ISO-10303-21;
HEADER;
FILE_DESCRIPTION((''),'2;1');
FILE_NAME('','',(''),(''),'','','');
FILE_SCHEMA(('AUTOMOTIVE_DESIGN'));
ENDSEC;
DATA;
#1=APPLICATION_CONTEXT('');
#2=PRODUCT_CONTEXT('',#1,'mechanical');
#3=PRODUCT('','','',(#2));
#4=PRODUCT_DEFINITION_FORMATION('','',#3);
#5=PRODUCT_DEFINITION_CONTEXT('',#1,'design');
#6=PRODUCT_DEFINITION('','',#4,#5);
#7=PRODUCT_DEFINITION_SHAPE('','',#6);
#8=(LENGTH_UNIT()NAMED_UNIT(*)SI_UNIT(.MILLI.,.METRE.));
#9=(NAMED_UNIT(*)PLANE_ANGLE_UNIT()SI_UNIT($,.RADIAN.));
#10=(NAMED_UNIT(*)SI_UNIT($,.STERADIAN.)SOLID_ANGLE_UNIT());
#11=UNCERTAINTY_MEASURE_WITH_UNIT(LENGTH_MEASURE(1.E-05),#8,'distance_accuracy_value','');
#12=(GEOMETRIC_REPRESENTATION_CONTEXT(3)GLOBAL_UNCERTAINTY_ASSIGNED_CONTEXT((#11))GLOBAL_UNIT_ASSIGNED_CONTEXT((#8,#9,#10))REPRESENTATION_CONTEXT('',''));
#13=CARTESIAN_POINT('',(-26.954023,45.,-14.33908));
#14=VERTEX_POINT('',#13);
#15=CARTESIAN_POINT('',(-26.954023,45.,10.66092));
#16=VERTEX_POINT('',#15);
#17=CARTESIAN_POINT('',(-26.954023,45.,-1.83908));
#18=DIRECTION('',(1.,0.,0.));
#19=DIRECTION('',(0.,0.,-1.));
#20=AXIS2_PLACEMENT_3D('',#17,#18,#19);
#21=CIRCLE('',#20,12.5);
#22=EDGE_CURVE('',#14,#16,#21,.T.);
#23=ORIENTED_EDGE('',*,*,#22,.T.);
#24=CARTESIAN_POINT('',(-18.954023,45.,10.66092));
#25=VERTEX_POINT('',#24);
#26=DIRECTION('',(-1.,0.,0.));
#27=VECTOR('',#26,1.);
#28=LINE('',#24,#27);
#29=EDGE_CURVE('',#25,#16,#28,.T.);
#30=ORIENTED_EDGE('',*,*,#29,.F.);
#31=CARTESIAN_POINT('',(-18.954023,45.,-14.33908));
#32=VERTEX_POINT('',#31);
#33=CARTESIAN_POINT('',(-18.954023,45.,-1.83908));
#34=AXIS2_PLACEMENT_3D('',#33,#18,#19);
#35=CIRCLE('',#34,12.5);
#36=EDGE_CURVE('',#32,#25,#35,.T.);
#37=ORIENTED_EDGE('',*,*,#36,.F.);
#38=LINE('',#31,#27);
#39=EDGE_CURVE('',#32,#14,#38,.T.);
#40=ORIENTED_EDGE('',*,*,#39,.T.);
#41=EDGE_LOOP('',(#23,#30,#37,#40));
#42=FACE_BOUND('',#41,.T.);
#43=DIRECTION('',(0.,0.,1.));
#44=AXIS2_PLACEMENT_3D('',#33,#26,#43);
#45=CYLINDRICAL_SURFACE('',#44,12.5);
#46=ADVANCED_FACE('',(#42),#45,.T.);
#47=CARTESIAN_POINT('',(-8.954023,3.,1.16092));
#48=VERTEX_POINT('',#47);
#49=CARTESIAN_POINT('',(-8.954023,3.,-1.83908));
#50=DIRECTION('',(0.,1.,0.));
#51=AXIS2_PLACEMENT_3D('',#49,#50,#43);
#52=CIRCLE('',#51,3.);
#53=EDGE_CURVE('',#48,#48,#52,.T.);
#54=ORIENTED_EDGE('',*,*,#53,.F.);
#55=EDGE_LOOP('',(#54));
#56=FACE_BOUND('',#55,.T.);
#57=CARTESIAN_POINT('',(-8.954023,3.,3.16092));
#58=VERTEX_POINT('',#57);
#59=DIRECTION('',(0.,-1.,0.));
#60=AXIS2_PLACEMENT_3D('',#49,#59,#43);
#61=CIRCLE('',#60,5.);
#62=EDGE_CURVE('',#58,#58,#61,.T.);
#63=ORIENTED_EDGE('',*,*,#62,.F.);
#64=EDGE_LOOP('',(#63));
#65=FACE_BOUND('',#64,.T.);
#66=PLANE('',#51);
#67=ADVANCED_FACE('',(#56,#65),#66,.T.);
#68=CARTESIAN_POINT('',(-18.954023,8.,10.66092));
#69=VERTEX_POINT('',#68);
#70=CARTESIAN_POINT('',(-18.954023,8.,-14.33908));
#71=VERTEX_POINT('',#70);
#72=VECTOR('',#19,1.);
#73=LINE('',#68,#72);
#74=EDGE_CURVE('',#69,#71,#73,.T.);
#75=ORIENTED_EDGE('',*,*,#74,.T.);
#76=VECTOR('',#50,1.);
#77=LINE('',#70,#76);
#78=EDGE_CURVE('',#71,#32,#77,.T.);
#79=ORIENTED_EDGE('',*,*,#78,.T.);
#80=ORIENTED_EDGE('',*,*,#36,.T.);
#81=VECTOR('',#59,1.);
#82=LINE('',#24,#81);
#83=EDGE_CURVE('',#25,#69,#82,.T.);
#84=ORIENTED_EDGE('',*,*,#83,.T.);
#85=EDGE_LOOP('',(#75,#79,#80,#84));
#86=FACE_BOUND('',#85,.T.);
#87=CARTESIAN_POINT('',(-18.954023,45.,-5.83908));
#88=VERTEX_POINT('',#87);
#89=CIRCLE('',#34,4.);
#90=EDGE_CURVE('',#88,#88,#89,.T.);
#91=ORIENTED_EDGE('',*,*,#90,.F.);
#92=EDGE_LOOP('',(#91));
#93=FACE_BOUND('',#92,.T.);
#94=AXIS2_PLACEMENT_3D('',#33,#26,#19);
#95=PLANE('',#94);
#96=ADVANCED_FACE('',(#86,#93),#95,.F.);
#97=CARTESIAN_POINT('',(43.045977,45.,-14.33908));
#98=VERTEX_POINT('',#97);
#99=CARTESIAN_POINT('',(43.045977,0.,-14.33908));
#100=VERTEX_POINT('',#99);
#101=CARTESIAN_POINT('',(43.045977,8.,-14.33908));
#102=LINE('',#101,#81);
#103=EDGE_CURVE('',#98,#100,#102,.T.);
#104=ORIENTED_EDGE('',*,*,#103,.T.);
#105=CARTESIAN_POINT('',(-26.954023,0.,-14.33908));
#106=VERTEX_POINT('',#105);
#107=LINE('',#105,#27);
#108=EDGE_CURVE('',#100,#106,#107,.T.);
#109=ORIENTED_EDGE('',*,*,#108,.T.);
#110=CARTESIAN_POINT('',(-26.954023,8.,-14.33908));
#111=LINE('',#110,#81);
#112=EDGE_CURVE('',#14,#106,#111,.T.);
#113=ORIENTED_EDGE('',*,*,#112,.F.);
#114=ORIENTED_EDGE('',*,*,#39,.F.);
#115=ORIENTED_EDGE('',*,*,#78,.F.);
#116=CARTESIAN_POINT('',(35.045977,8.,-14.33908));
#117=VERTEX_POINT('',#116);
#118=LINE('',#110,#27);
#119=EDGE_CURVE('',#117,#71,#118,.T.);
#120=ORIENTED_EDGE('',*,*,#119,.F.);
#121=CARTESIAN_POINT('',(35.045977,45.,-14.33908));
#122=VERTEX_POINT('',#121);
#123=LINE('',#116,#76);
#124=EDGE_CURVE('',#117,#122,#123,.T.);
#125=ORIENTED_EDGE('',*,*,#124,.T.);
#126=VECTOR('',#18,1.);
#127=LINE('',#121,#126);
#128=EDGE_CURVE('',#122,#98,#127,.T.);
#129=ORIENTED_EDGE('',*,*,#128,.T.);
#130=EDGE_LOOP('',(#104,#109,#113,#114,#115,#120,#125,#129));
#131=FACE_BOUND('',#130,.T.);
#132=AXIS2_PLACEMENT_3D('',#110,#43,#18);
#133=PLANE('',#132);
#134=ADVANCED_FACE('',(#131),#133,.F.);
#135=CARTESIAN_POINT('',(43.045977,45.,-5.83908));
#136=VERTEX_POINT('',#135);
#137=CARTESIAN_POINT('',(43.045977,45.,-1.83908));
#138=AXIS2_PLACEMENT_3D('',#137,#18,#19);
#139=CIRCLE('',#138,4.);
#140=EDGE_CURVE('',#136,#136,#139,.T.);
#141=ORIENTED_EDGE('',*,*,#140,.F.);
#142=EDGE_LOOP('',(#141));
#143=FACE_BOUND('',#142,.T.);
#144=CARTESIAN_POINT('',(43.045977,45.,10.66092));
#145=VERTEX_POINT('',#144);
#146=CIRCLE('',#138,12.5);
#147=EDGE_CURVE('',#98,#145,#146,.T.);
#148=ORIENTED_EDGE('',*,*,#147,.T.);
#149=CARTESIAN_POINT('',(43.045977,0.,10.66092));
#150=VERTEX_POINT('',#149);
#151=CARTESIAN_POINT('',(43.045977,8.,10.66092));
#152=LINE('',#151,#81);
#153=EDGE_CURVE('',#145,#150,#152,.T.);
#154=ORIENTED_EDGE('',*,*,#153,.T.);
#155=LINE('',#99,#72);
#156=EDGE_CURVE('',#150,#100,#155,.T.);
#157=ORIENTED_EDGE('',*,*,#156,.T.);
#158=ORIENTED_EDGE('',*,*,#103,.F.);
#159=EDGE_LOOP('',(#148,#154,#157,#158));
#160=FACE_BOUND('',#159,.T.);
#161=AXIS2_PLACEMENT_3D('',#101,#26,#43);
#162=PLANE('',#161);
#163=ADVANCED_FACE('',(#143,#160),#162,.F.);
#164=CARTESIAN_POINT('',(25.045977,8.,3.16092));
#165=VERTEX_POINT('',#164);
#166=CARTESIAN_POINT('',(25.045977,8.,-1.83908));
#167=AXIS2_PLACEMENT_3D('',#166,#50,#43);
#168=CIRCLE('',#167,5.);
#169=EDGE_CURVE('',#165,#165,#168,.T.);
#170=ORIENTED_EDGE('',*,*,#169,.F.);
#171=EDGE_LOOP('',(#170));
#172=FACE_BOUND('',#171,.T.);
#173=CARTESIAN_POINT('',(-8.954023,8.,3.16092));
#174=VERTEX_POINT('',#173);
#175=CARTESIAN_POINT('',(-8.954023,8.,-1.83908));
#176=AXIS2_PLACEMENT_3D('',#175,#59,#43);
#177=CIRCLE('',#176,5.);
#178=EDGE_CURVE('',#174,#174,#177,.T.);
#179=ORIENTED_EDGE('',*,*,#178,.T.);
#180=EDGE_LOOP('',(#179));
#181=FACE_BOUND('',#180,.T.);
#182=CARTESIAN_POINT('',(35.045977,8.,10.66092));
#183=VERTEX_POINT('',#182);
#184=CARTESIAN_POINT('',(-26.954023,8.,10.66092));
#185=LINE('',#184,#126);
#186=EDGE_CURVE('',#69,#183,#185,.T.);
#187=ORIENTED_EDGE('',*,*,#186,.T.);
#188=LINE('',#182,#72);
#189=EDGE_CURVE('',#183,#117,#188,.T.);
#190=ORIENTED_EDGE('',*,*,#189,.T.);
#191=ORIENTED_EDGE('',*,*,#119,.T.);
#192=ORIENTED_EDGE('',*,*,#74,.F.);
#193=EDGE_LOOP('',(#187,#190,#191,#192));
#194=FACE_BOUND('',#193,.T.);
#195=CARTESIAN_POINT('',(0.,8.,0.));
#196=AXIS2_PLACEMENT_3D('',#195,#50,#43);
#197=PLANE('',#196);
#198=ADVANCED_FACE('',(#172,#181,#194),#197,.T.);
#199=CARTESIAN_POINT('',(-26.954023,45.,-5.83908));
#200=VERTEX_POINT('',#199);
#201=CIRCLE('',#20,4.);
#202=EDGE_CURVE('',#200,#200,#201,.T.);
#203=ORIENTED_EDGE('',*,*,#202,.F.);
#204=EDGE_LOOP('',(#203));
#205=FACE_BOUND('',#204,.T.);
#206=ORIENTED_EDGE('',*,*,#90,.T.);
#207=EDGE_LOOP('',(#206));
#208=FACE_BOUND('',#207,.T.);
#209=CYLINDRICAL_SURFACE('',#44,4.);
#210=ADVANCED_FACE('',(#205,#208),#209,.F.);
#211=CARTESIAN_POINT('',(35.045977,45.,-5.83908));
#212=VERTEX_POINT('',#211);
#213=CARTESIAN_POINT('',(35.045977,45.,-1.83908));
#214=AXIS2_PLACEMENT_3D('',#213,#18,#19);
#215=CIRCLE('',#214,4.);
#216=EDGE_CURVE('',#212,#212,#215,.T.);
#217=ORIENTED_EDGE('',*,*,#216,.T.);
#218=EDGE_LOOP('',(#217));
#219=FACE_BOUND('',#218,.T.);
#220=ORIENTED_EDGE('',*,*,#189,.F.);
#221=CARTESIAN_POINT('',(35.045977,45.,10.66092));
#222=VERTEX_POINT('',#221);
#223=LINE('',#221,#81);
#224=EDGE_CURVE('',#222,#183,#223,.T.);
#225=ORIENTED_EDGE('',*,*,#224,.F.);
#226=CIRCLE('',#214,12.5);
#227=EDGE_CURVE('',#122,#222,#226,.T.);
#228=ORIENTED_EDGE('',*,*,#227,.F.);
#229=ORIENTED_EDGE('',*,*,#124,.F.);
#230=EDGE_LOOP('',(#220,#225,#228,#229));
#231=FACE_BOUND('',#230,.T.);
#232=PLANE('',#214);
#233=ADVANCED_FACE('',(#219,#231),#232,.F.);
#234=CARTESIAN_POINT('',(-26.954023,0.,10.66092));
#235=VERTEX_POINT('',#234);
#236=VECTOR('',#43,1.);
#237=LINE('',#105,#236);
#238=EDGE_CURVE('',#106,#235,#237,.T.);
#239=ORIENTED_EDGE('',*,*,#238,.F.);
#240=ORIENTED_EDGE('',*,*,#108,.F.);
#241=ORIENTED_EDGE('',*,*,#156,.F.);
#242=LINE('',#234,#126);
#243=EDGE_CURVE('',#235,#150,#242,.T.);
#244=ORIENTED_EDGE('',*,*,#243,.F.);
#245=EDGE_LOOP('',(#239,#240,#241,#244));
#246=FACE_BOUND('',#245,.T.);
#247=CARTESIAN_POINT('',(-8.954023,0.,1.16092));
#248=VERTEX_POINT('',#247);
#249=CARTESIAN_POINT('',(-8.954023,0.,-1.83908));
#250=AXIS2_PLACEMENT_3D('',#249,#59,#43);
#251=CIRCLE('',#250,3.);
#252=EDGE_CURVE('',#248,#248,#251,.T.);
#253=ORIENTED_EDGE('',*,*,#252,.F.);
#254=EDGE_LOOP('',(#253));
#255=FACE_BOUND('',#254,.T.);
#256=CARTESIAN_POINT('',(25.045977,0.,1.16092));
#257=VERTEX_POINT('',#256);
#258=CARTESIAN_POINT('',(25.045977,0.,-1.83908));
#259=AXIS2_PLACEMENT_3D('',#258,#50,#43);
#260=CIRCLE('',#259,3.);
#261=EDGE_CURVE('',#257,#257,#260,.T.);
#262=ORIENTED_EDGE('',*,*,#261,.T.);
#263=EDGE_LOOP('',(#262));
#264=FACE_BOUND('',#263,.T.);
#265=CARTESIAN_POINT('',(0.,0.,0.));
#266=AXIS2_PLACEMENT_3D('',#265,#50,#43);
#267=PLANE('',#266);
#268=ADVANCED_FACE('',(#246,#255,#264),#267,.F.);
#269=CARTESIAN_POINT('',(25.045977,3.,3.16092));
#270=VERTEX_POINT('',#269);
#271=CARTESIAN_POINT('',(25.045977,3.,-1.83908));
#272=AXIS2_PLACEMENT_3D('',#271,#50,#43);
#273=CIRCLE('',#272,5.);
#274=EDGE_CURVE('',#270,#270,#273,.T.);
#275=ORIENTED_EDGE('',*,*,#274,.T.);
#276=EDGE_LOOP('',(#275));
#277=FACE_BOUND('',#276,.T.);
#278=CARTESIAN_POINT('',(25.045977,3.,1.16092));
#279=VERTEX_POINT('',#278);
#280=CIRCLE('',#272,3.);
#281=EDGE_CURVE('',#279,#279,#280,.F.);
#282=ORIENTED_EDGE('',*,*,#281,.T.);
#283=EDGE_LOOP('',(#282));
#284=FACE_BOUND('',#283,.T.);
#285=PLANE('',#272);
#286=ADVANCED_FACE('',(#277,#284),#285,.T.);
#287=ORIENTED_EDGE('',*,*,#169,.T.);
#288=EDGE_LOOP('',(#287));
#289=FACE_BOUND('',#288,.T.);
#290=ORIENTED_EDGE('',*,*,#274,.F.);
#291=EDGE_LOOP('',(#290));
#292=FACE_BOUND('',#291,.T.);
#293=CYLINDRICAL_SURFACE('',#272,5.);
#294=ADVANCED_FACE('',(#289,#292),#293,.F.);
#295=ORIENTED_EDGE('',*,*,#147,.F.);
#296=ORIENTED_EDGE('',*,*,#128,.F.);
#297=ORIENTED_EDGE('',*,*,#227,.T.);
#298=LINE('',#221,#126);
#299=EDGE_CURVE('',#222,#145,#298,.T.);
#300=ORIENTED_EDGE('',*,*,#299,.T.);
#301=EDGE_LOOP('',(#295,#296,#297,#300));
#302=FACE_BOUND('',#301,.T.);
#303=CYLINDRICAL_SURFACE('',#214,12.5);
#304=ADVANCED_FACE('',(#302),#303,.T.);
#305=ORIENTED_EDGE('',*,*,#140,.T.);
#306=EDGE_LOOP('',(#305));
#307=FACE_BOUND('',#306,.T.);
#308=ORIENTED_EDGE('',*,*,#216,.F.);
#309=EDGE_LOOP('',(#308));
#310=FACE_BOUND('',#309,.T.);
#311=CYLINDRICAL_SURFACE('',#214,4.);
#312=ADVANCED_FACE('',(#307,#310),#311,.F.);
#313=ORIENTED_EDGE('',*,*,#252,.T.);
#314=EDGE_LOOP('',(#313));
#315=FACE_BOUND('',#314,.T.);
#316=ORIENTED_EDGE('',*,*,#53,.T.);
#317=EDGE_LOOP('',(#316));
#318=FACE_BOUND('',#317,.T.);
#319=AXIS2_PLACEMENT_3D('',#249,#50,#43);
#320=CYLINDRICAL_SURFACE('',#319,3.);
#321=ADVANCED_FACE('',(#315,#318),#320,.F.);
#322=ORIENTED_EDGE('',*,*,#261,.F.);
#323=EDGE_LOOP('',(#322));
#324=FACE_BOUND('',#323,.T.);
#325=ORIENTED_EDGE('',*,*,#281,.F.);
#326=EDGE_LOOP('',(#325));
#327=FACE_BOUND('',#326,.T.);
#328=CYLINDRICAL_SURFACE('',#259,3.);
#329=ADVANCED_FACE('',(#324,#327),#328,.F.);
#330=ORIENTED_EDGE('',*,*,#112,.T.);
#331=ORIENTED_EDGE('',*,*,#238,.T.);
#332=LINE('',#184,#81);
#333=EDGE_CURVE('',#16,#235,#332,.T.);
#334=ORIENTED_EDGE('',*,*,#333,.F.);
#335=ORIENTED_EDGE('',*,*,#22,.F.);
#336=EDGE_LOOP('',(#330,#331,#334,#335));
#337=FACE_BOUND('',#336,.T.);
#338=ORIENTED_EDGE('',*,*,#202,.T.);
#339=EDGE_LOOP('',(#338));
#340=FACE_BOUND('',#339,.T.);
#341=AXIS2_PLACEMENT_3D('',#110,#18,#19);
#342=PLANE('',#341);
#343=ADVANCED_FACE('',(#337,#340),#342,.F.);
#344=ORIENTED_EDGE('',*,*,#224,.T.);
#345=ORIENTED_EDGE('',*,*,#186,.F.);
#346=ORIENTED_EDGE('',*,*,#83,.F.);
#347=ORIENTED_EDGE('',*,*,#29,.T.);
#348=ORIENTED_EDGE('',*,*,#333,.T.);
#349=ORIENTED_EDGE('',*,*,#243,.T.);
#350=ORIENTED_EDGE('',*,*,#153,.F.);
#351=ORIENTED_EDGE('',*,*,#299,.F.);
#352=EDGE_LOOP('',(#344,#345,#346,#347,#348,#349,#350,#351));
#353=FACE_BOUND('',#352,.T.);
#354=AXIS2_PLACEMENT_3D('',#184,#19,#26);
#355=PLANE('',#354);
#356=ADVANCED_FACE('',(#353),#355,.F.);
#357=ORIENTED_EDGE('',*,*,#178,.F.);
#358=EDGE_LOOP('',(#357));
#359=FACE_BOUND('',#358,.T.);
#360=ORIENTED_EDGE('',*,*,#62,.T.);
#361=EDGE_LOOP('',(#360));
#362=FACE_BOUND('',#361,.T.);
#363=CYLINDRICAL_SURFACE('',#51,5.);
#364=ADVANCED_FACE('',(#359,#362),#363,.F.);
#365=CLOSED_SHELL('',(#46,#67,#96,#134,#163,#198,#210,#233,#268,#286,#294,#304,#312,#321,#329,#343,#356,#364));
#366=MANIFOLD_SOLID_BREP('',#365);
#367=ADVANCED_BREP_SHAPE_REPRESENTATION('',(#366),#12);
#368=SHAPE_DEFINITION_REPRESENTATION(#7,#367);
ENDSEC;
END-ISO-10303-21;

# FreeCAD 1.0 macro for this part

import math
import FreeCAD as App
import Part
import Sketcher
from FreeCAD import Vector


def add_polygon(sketch, points):
    """Adds a closed chain of lines whose ends are joined by coincident constraints."""
    first, n = sketch.GeometryCount, len(points)
    for a, b in zip(points, points[1:] + points[:1]):
        sketch.addGeometry(Part.LineSegment(App.Vector(*a, 0), App.Vector(*b, 0)), False)
    for i in range(n):
        sketch.addConstraint(Sketcher.Constraint("Coincident", first + i, 2, first + (i + 1) % n, 1))

doc = App.newDocument("Part")
params = doc.addObject("Spreadsheet::Sheet", "Params")
for row, (alias, value) in enumerate([
    ("sketch1_width", "70 mm"),
    ("sketch1_height", "25 mm"),
    ("pad1_length", "8 mm"),
    ("sketch2_diameter", "6 mm"),
    ("sketch3_diameter", "10 mm"),
    ("pocket2_length", "5 mm"),
    ("sketch4_diameter", "8 mm"),
    ("sketch4_radius", "12.5 mm"),
    ("sketch4_width", "37 mm"),
    ("pad2_length", "8 mm"),
], start=1):
    params.set(f"A{row}", alias)
    params.set(f"B{row}", "=" + value)
    params.setAlias(f"B{row}", alias)

body = doc.addObject("PartDesign::Body", "Body")

# Sketch on XZ plane
sketch1 = body.newObject("Sketcher::SketchObject", "Sketch")
sketch1.AttachmentSupport = (doc.getObject("XZ_Plane"), [""])
sketch1.MapMode = "FlatFace"
add_polygon(sketch1, [(-26.954023, -14.33908), (-26.954023, 10.66092), (43.045977, 10.66092), (43.045977, -14.33908)])  # lines 0-3
sketch1.addConstraint([
    Sketcher.Constraint("Vertical", 0),
    Sketcher.Constraint("Horizontal", 1),
    Sketcher.Constraint("Vertical", 2),
    Sketcher.Constraint("Horizontal", 3),
    Sketcher.Constraint("DistanceX", 1, 1, 1, 2, 70.0),
    Sketcher.Constraint("DistanceY", 0, 1, 0, 2, 25.0),
    Sketcher.Constraint("DistanceY", -1, 1, 0, 2, 10.66092),
    Sketcher.Constraint("DistanceX", 0, 2, -1, 1, 26.954023),
])
sketch1.setExpression("Constraints[8]", "Params.sketch1_width")
sketch1.setExpression("Constraints[9]", "Params.sketch1_height")
pad1 = body.newObject("PartDesign::Pad", "Pad")
pad1.Profile = sketch1
pad1.setExpression("Length", "Params.pad1_length")
pad1.Reversed = True

# Sketch on XZ plane
sketch2 = body.newObject("Sketcher::SketchObject", "Sketch001")
sketch2.AttachmentSupport = (doc.getObject("XZ_Plane"), [""])
sketch2.MapMode = "FlatFace"
sketch2.AttachmentOffset = App.Placement(Vector(0, 0, -8), App.Rotation())
sketch2.addGeometry(Part.Circle(Vector(25.045977, -1.83908, 0), Vector(0, 0, 1), 3), False)
sketch2.addConstraint([
    Sketcher.Constraint("Diameter", 0, 6.0),
    Sketcher.Constraint("DistanceY", 0, 3, -1, 1, 1.83908),
    Sketcher.Constraint("DistanceX", -1, 1, 0, 3, 25.045977),
])
sketch2.setExpression("Constraints[0]", "Params.sketch2_diameter")
pocket1 = body.newObject("PartDesign::Pocket", "Pocket")
pocket1.Profile = sketch2
pocket1.Type = "ThroughAll"
pocket1.Reversed = True

# Sketch on XZ plane
sketch3 = body.newObject("Sketcher::SketchObject", "Sketch002")
sketch3.AttachmentSupport = (doc.getObject("XZ_Plane"), [""])
sketch3.MapMode = "FlatFace"
sketch3.AttachmentOffset = App.Placement(Vector(0, 0, -8), App.Rotation())
sketch3.addGeometry(Part.Circle(Vector(25.045977, -1.83908, 0), Vector(0, 0, 1), 5), False)
sketch3.addConstraint([
    Sketcher.Constraint("Diameter", 0, 10.0),
    Sketcher.Constraint("DistanceY", 0, 3, -1, 1, 1.83908),
    Sketcher.Constraint("DistanceX", -1, 1, 0, 3, 25.045977),
])
sketch3.setExpression("Constraints[0]", "Params.sketch3_diameter")
pocket2 = body.newObject("PartDesign::Pocket", "Pocket001")
pocket2.Profile = sketch3
pocket2.setExpression("Length", "Params.pocket2_length")
pocket2.Reversed = True

# Sketch on YZ plane
sketch4 = body.newObject("Sketcher::SketchObject", "Sketch003")
sketch4.AttachmentSupport = (doc.getObject("YZ_Plane"), [""])
sketch4.MapMode = "FlatFace"
sketch4.AttachmentOffset = App.Placement(Vector(0, 0, 43.045977), App.Rotation())
sketch4.addGeometry([
    Part.LineSegment(Vector(45, 10.66092, 0), Vector(8, 10.66092, 0)),  # 0
    Part.LineSegment(Vector(8, 10.66092, 0), Vector(8, -14.33908, 0)),  # 1
    Part.LineSegment(Vector(8, -14.33908, 0), Vector(45, -14.33908, 0)),  # 2
    Part.ArcOfCircle(Part.Circle(Vector(45, -1.83908, 0), Vector(0, 0, 1), 12.5), math.radians(-90), math.radians(90)),  # 3
    Part.Circle(Vector(45, -1.83908, 0), Vector(0, 0, 1), 4),  # 4
], False)
sketch4.addConstraint([
    Sketcher.Constraint("Coincident", 0, 2, 1, 1),
    Sketcher.Constraint("Coincident", 1, 2, 2, 1),
    Sketcher.Constraint("Tangent", 2, 2, 3, 1),
    Sketcher.Constraint("Tangent", 3, 2, 0, 1),
    Sketcher.Constraint("Horizontal", 0),
    Sketcher.Constraint("Vertical", 1),
    Sketcher.Constraint("Horizontal", 2),
    Sketcher.Constraint("Coincident", 4, 3, 3, 3),
    Sketcher.Constraint("Diameter", 4, 8.0),
    Sketcher.Constraint("Radius", 3, 12.5),
    Sketcher.Constraint("DistanceX", 0, 2, 0, 1, 37.0),
    Sketcher.Constraint("DistanceX", -1, 1, 3, 3, 45.0),
    Sketcher.Constraint("DistanceY", 3, 3, -1, 1, 1.83908),
])
sketch4.setExpression("Constraints[8]", "Params.sketch4_diameter")
sketch4.setExpression("Constraints[9]", "Params.sketch4_radius")
sketch4.setExpression("Constraints[10]", "Params.sketch4_width")
pad2 = body.newObject("PartDesign::Pad", "Pad001")
pad2.Profile = sketch4
pad2.setExpression("Length", "Params.pad2_length")
pad2.Reversed = True
doc.recompute()

datumplane = body.newObject("PartDesign::Plane", "DatumPlane")
datumplane.AttachmentSupport = (doc.getObject("YZ_Plane"), [""])
datumplane.MapMode = "FlatFace"
datumplane.AttachmentOffset = App.Placement(Vector(0, 0, 8.045977), App.Rotation())
mirrored = body.newObject("PartDesign::Mirrored", "Mirrored")
mirrored.Originals = [pocket1, pocket2, pad2]
mirrored.MirrorPlane = (datumplane, [""])
body.Tip = mirrored

doc.recompute()
